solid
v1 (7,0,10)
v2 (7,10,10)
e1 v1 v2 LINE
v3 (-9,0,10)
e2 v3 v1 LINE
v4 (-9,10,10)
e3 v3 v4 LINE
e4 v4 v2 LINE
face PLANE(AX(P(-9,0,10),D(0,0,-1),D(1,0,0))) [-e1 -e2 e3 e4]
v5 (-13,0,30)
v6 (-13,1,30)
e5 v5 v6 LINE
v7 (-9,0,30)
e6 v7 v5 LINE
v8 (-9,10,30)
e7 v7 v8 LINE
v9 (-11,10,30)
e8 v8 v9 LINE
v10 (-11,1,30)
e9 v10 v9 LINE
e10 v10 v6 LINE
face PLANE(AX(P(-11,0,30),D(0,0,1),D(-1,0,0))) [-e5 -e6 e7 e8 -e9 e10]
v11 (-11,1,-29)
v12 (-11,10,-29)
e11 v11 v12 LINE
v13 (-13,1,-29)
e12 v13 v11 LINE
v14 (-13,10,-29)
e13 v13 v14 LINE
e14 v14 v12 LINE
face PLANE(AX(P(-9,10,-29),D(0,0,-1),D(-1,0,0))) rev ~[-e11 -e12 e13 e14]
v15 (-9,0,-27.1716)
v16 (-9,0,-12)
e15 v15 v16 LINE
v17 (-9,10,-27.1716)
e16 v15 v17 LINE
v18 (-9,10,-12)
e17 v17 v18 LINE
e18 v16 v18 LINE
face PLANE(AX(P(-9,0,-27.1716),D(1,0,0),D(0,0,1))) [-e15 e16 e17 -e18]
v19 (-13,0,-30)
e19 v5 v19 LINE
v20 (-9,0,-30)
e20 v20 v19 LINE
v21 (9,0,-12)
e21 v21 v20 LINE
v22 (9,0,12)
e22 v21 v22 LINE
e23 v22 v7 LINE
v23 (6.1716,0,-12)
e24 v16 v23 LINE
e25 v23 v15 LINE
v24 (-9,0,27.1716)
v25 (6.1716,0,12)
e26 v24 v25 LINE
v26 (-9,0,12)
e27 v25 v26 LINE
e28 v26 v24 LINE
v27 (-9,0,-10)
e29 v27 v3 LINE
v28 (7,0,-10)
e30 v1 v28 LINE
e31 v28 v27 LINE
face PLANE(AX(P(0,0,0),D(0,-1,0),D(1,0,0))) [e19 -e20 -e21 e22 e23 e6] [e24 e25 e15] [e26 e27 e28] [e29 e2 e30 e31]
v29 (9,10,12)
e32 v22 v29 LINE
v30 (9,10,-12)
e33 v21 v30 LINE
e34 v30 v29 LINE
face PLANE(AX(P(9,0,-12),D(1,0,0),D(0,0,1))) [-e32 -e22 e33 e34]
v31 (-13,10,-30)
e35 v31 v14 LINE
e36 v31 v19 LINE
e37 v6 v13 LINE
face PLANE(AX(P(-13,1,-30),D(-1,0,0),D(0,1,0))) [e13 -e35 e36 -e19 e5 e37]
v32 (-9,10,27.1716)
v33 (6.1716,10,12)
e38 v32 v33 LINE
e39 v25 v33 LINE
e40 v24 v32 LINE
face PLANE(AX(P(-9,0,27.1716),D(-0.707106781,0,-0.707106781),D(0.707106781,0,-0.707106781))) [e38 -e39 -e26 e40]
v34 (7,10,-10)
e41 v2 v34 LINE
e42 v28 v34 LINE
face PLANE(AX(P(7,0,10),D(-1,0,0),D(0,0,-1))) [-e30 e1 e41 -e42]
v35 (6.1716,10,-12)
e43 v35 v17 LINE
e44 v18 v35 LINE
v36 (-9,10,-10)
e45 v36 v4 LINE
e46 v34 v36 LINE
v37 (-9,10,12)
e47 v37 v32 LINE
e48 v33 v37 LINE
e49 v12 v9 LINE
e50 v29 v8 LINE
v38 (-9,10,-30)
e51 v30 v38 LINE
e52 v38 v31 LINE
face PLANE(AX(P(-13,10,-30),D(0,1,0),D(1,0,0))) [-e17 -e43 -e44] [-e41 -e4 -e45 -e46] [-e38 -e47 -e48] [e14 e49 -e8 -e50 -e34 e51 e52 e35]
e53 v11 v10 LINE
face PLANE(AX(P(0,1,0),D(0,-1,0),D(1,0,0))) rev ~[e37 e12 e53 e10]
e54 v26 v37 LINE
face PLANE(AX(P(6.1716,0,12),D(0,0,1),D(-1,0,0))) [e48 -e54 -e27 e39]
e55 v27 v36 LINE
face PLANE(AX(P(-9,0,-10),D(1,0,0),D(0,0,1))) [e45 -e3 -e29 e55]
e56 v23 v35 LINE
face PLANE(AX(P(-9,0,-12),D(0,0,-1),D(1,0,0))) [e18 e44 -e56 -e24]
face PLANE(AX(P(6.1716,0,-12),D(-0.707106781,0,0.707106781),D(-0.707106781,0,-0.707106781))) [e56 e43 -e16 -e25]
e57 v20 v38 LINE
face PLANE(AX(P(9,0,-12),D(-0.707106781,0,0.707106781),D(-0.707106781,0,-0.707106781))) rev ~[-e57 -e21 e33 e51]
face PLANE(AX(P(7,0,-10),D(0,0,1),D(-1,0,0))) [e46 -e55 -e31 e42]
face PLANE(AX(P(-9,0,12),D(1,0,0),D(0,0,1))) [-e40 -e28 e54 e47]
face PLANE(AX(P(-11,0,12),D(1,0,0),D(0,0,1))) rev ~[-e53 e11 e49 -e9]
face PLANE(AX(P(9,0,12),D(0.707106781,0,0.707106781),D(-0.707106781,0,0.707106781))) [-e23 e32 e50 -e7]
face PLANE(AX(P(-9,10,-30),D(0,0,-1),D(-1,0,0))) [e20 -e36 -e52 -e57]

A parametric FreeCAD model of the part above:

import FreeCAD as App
import Part
import Sketcher
from FreeCAD import Vector


def add_polygon(sketch, points):
    """Adds a closed chain of lines whose ends are joined by coincident constraints."""
    first, n = sketch.GeometryCount, len(points)
    for a, b in zip(points, points[1:] + points[:1]):
        sketch.addGeometry(Part.LineSegment(App.Vector(*a, 0), App.Vector(*b, 0)), False)
    for i in range(n):
        sketch.addConstraint(Sketcher.Constraint("Coincident", first + i, 2, first + (i + 1) % n, 1))

doc = App.newDocument("Part")
body = doc.addObject("PartDesign::Body", "Body")

# Sketch on XZ plane
sketch1 = doc.addObject("Sketcher::SketchObject", "Sketch")
body.addObject(sketch1)
sketch1.AttachmentSupport = (doc.XZ_Plane, [""])
sketch1.MapMode = "FlatFace"
add_polygon(sketch1, [(-9, 30), (9, 12), (9, -12), (-9, -30), (-11, -30), (-11, 30)])  # lines 0-5
add_polygon(sketch1, [(6.1716, 12), (-9, 27.1716), (-9, 12)])  # lines 6-8
add_polygon(sketch1, [(-9, -10), (7, -10), (7, 10), (-9, 10)])  # lines 9-12
add_polygon(sketch1, [(6.1716, -12), (-9, -12), (-9, -27.1716)])  # lines 13-15
sketch1.addConstraint([
    Sketcher.Constraint("Vertical", 1),
    Sketcher.Constraint("Horizontal", 3),
    Sketcher.Constraint("Vertical", 4),
    Sketcher.Constraint("Horizontal", 5),
    Sketcher.Constraint("Vertical", 7),
    Sketcher.Constraint("Horizontal", 8),
    Sketcher.Constraint("Horizontal", 9),
    Sketcher.Constraint("Vertical", 10),
    Sketcher.Constraint("Horizontal", 11),
    Sketcher.Constraint("Vertical", 12),
    Sketcher.Constraint("Horizontal", 13),
    Sketcher.Constraint("Vertical", 14),
    Sketcher.Constraint("Symmetric", 1, 2, 7, 2, -1, 1),
    Sketcher.Constraint("Symmetric", 0, 2, 13, 2, -1, 1),
    Sketcher.Constraint("Symmetric", 2, 2, 5, 2, -1),
    Sketcher.Constraint("Symmetric", 8, 2, 15, 2, -1),
    Sketcher.Constraint("Perpendicular", 0, 2),
    Sketcher.Constraint("Perpendicular", 2, 6),
    Sketcher.Constraint("Perpendicular", 6, 15),
    Sketcher.Constraint("Vertical", 5, 2, 6, 2),
    Sketcher.Constraint("Vertical", 7, 2, 11, 2),
    Sketcher.Constraint("DistanceX", 3, 2, 3, 1, 2.0),
    Sketcher.Constraint("DistanceX", 9, 1, 9, 2, 16.0),
    Sketcher.Constraint("DistanceY", 10, 1, 10, 2, 20.0),
    Sketcher.Constraint("DistanceX", 3, 2, 1, 2, 20.0),
    Sketcher.Constraint("DistanceY", 1, 2, 9, 2, 2.0),
    Sketcher.Constraint("DistanceY", 10, 2, 8, 2, 2.0),
    Sketcher.Constraint("Distance", 6, 21.456),
])
pad1 = doc.addObject("PartDesign::Pad", "Pad")
body.addObject(pad1)
pad1.Profile = sketch1
pad1.Length = 10
pad1.Reversed = True

# Sketch on XZ plane
sketch2 = doc.addObject("Sketcher::SketchObject", "Sketch001")
body.addObject(sketch2)
sketch2.AttachmentSupport = (doc.XZ_Plane, [""])
sketch2.MapMode = "FlatFace"
add_polygon(sketch2, [(-11, -30), (-11, 30), (-13, 30), (-13, -30)])  # lines 0-3
sketch2.addConstraint([
    Sketcher.Constraint("Vertical", 0),
    Sketcher.Constraint("Horizontal", 1),
    Sketcher.Constraint("Vertical", 2),
    Sketcher.Constraint("Horizontal", 3),
    Sketcher.Constraint("DistanceX", 1, 2, 1, 1, 2.0),
    Sketcher.Constraint("DistanceY", 0, 1, 0, 2, 60.0),
    Sketcher.Constraint("DistanceX", 0, 2, -1, 1, 11.0),
    Sketcher.Constraint("DistanceY", -1, 1, 0, 2, 30.0),
])
pad2 = doc.addObject("PartDesign::Pad", "Pad001")
body.addObject(pad2)
pad2.Profile = sketch2
pad2.Length = 1
pad2.Reversed = True

# Sketch on XY plane
sketch3 = doc.addObject("Sketcher::SketchObject", "Sketch002")
body.addObject(sketch3)
sketch3.AttachmentSupport = (doc.XY_Plane, [""])
sketch3.MapMode = "FlatFace"
sketch3.AttachmentOffset = App.Placement(Vector(0, 0, -30), App.Rotation())
add_polygon(sketch3, [(-11, 10), (-11, 1), (-13, 1), (-13, 10)])  # lines 0-3
sketch3.addConstraint([
    Sketcher.Constraint("Vertical", 0),
    Sketcher.Constraint("Horizontal", 1),
    Sketcher.Constraint("Vertical", 2),
    Sketcher.Constraint("Horizontal", 3),
    Sketcher.Constraint("DistanceX", 1, 2, 1, 1, 2.0),
    Sketcher.Constraint("DistanceY", 0, 2, 0, 1, 9.0),
    Sketcher.Constraint("DistanceX", 0, 2, -1, 1, 11.0),
    Sketcher.Constraint("DistanceY", -1, 1, 0, 2, 1.0),
])
pad3 = doc.addObject("PartDesign::Pad", "Pad002")
body.addObject(pad3)
pad3.Profile = sketch3
pad3.Length = 1

doc.recompute()
